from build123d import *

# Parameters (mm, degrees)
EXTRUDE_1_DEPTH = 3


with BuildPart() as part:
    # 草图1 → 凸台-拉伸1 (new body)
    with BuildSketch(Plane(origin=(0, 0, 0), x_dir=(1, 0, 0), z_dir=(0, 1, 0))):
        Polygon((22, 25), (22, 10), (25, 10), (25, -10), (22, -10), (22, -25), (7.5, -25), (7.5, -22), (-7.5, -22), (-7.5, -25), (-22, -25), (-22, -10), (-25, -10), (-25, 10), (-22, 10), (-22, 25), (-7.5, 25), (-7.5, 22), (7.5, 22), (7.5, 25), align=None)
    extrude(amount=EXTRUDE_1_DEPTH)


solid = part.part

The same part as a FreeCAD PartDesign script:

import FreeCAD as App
import Part
import Sketcher
Q = App.Units.Quantity

doc = App.newDocument("Part")
body = doc.addObject("PartDesign::Body", "Body")

# Sketch on XZ plane
sketch1 = body.newObject("Sketcher::SketchObject", "Sketch")
sketch1.AttachmentSupport = (doc.getObject("XZ_Plane"), [""])
sketch1.MapMode = "FlatFace"
sketch1.addGeometry([
    Part.LineSegment(App.Vector(22, -10, 0), App.Vector(22, -25, 0)),  # 0
    Part.LineSegment(App.Vector(22, -25, 0), App.Vector(7.5, -25, 0)),  # 1
    Part.LineSegment(App.Vector(7.5, -25, 0), App.Vector(7.5, -22, 0)),  # 2
    Part.LineSegment(App.Vector(7.5, -22, 0), App.Vector(-7.5, -22, 0)),  # 3
    Part.LineSegment(App.Vector(-7.5, -22, 0), App.Vector(-7.5, -25, 0)),  # 4
    Part.LineSegment(App.Vector(-7.5, -25, 0), App.Vector(-22, -25, 0)),  # 5
    Part.LineSegment(App.Vector(-22, -25, 0), App.Vector(-22, -10, 0)),  # 6
    Part.LineSegment(App.Vector(-22, -10, 0), App.Vector(-25, -10, 0)),  # 7
    Part.LineSegment(App.Vector(-25, -10, 0), App.Vector(-25, 10, 0)),  # 8
    Part.LineSegment(App.Vector(-25, 10, 0), App.Vector(-22, 10, 0)),  # 9
    Part.LineSegment(App.Vector(-22, 10, 0), App.Vector(-22, 25, 0)),  # 10
    Part.LineSegment(App.Vector(-22, 25, 0), App.Vector(-7.5, 25, 0)),  # 11
    Part.LineSegment(App.Vector(-7.5, 25, 0), App.Vector(-7.5, 22, 0)),  # 12
    Part.LineSegment(App.Vector(-7.5, 22, 0), App.Vector(7.5, 22, 0)),  # 13
    Part.LineSegment(App.Vector(7.5, 22, 0), App.Vector(7.5, 25, 0)),  # 14
    Part.LineSegment(App.Vector(7.5, 25, 0), App.Vector(22, 25, 0)),  # 15
    Part.LineSegment(App.Vector(22, 25, 0), App.Vector(22, 10, 0)),  # 16
    Part.LineSegment(App.Vector(22, 10, 0), App.Vector(25, 10, 0)),  # 17
    Part.LineSegment(App.Vector(25, 10, 0), App.Vector(25, -10, 0)),  # 18
    Part.LineSegment(App.Vector(25, -10, 0), App.Vector(22, -10, 0)),  # 19
], False)
sketch1.addConstraint([
    Sketcher.Constraint("Coincident", 0, 2, 1, 1),
    Sketcher.Constraint("Coincident", 1, 2, 2, 1),
    Sketcher.Constraint("Coincident", 2, 2, 3, 1),
    Sketcher.Constraint("Coincident", 3, 2, 4, 1),
    Sketcher.Constraint("Coincident", 4, 2, 5, 1),
    Sketcher.Constraint("Coincident", 5, 2, 6, 1),
    Sketcher.Constraint("Coincident", 6, 2, 7, 1),
    Sketcher.Constraint("Coincident", 7, 2, 8, 1),
    Sketcher.Constraint("Coincident", 8, 2, 9, 1),
    Sketcher.Constraint("Coincident", 9, 2, 10, 1),
    Sketcher.Constraint("Coincident", 10, 2, 11, 1),
    Sketcher.Constraint("Coincident", 11, 2, 12, 1),
    Sketcher.Constraint("Coincident", 12, 2, 13, 1),
    Sketcher.Constraint("Coincident", 13, 2, 14, 1),
    Sketcher.Constraint("Coincident", 14, 2, 15, 1),
    Sketcher.Constraint("Coincident", 15, 2, 16, 1),
    Sketcher.Constraint("Coincident", 16, 2, 17, 1),
    Sketcher.Constraint("Coincident", 17, 2, 18, 1),
    Sketcher.Constraint("Coincident", 18, 2, 19, 1),
    Sketcher.Constraint("Coincident", 19, 2, 0, 1),
    Sketcher.Constraint("Vertical", 0),
    Sketcher.Constraint("Horizontal", 1),
    Sketcher.Constraint("Vertical", 2),
    Sketcher.Constraint("Horizontal", 3),
    Sketcher.Constraint("Vertical", 4),
    Sketcher.Constraint("Horizontal", 5),
    Sketcher.Constraint("Vertical", 6),
    Sketcher.Constraint("Horizontal", 7),
    Sketcher.Constraint("Vertical", 8),
    Sketcher.Constraint("Horizontal", 9),
    Sketcher.Constraint("Vertical", 10),
    Sketcher.Constraint("Horizontal", 11),
    Sketcher.Constraint("Vertical", 12),
    Sketcher.Constraint("Horizontal", 13),
    Sketcher.Constraint("Vertical", 14),
    Sketcher.Constraint("Horizontal", 15),
    Sketcher.Constraint("Vertical", 16),
    Sketcher.Constraint("Horizontal", 17),
    Sketcher.Constraint("Vertical", 18),
    Sketcher.Constraint("Horizontal", 19),
    Sketcher.Constraint("Symmetric", 0, 2, 10, 2, -1, 1),
    Sketcher.Constraint("Symmetric", 2, 2, 12, 2, -1, 1),
    Sketcher.Constraint("Symmetric", 4, 2, 14, 2, -1, 1),
    Sketcher.Constraint("Symmetric", 6, 2, 16, 2, -1, 1),
    Sketcher.Constraint("Symmetric", 8, 2, 18, 2, -1, 1),
    Sketcher.Constraint("Symmetric", 1, 2, 4, 2, -2),
    Sketcher.Constraint("Symmetric", 9, 2, 16, 2, -2),
    Sketcher.Constraint("Equal", 13, 0),
    Sketcher.Constraint("Equal", 19, 2),
    Sketcher.Constraint("DistanceX", 3, 2, 3, 1, Q("15 mm")),
    Sketcher.Constraint("DistanceX", 7, 2, 7, 1, Q("3 mm")),
    Sketcher.Constraint("DistanceY", 8, 1, 8, 2, Q("20 mm")),
    Sketcher.Constraint("DistanceX", 1, 2, 1, 1, Q("14.5 mm")),
])
pad1 = body.newObject("PartDesign::Pad", "Pad")
pad1.Profile = sketch1
pad1.Length = 3
pad1.Reversed = True

doc.recompute()
